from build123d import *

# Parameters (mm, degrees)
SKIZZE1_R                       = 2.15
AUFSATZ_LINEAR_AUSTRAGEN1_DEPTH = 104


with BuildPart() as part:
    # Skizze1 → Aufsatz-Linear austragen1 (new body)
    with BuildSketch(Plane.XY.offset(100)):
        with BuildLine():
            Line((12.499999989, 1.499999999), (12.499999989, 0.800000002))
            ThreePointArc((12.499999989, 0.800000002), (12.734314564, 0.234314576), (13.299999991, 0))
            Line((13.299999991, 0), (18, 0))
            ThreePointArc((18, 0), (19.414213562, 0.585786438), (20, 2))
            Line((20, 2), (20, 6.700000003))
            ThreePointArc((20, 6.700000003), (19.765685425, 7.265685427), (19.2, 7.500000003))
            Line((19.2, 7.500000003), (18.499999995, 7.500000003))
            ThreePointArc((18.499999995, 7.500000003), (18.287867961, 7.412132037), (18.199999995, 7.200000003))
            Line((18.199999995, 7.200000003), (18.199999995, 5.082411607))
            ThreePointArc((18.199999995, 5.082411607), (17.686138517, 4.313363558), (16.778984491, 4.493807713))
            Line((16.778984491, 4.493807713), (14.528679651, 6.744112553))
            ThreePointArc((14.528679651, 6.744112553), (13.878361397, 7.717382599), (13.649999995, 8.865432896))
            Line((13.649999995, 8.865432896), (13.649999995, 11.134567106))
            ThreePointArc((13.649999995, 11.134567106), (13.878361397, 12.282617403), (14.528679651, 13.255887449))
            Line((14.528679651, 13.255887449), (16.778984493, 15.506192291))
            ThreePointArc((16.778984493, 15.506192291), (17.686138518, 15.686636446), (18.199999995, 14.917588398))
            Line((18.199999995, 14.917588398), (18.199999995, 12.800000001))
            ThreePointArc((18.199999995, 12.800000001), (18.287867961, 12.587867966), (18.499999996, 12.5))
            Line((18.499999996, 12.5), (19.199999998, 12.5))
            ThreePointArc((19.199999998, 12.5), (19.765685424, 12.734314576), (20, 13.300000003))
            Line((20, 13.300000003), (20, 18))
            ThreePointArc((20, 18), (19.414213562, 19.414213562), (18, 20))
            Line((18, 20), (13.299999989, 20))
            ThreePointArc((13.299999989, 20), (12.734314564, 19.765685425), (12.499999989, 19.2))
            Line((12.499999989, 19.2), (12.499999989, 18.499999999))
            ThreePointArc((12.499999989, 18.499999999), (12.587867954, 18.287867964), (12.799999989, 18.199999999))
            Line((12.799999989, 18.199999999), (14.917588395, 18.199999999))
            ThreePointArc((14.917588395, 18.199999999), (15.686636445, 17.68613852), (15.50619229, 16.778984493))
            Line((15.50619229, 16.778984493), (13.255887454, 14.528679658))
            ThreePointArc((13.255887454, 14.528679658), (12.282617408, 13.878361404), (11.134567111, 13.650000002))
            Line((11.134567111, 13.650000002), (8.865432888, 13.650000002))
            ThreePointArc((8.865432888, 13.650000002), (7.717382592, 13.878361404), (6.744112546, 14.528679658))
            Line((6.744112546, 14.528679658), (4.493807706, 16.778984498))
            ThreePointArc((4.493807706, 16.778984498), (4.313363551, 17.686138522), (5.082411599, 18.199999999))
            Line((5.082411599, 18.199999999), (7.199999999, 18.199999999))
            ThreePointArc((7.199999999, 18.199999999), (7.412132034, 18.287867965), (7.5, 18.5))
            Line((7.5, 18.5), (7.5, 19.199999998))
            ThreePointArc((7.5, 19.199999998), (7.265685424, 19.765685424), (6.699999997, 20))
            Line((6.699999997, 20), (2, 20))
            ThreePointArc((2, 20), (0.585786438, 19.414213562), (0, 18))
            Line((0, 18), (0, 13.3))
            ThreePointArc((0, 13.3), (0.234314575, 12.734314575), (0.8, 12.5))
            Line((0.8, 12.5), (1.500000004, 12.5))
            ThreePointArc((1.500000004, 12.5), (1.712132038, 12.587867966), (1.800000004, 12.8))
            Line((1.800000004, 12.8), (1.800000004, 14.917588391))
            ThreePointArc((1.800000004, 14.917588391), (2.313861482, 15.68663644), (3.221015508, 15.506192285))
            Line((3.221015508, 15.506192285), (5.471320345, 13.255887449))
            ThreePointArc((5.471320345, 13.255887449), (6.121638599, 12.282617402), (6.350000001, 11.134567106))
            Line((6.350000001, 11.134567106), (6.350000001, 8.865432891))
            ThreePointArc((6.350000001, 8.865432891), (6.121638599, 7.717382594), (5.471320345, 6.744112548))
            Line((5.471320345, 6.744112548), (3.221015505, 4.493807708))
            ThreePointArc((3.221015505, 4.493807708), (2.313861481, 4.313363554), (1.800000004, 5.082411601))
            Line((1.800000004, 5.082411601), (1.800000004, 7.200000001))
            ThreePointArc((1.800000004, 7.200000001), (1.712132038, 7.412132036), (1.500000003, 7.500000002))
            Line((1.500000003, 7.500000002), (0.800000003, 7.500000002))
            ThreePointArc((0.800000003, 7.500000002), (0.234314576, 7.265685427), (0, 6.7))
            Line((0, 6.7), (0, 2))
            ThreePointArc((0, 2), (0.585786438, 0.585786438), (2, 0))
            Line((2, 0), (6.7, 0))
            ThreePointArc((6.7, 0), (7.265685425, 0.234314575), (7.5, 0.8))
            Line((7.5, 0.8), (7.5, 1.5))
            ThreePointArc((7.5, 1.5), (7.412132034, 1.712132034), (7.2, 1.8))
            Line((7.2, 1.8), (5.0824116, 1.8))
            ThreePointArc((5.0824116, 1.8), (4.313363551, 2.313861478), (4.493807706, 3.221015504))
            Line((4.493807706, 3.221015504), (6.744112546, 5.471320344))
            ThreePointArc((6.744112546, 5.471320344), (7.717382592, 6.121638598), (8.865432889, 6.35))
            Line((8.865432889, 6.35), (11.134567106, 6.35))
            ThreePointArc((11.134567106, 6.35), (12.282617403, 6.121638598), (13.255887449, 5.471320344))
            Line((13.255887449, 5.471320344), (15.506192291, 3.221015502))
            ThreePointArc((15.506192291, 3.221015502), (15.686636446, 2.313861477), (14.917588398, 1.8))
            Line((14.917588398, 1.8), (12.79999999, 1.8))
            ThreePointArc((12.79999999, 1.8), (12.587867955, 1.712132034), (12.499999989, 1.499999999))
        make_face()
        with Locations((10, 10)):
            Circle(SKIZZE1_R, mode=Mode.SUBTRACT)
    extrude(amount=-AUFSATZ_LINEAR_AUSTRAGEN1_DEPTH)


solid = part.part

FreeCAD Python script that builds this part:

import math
import FreeCAD as App
import Part
import Sketcher
from FreeCAD import Vector
Q = App.Units.Quantity

doc = App.newDocument("Part")
params = doc.addObject("Spreadsheet::Sheet", "Params")
for row, (alias, value) in enumerate([
    ("sketch1_radius", "2 mm"),
    ("sketch1_radius2", "3 mm"),
    ("sketch1_diameter", "4.3 mm"),
    ("sketch1_radius3", "0.8 mm"),
    ("sketch1_radius4", "0.3 mm"),
    ("pad1_length", "104 mm"),
], start=1):
    params.set(f"A{row}", alias)
    params.set(f"B{row}", "=" + value)
    params.setAlias(f"B{row}", alias)

body = doc.addObject("PartDesign::Body", "Body")

# Sketch on XY plane
sketch1 = body.newObject("Sketcher::SketchObject", "Sketch")
sketch1.AttachmentSupport = (doc.getObject("XY_Plane"), [""])
sketch1.MapMode = "FlatFace"
sketch1.AttachmentOffset = App.Placement(Vector(0, 0, 100), App.Rotation())
sketch1.addGeometry([
    Part.LineSegment(Vector(12.5, 1.5, 0), Vector(12.5, 0.8, 0)),  # 0
    Part.ArcOfCircle(Part.Circle(Vector(13.3, 0.8, 0), Vector(0, 0, 1), 0.8), math.radians(180), math.radians(270)),  # 1
    Part.LineSegment(Vector(13.3, 0, 0), Vector(18, 0, 0)),  # 2
    Part.ArcOfCircle(Part.Circle(Vector(18, 2, 0), Vector(0, 0, 1), 2), math.radians(-90), math.radians(0)),  # 3
    Part.LineSegment(Vector(20, 2, 0), Vector(20, 6.7, 0)),  # 4
    Part.ArcOfCircle(Part.Circle(Vector(19.2, 6.7, 0), Vector(0, 0, 1), 0.8), math.radians(0), math.radians(90)),  # 5
    Part.LineSegment(Vector(19.2, 7.5, 0), Vector(18.5, 7.5, 0)),  # 6
    Part.ArcOfCircle(Part.Circle(Vector(18.5, 7.2, 0), Vector(0, 0, 1), 0.3), math.radians(90), math.radians(180)),  # 7
    Part.LineSegment(Vector(18.2, 7.2, 0), Vector(18.2, 5.082412, 0)),  # 8
    Part.ArcOfCircle(Part.Circle(Vector(17.367588, 5.082412, 0), Vector(0, 0, 1), 0.832412), math.radians(-135), math.radians(0)),  # 9
    Part.LineSegment(Vector(16.778984, 4.493808, 0), Vector(14.52868, 6.744113, 0)),  # 10
    Part.ArcOfCircle(Part.Circle(Vector(16.65, 8.865433, 0), Vector(0, 0, 1), 3), math.radians(180), math.radians(225)),  # 11
    Part.LineSegment(Vector(13.65, 8.865433, 0), Vector(13.65, 11.134567, 0)),  # 12
    Part.ArcOfCircle(Part.Circle(Vector(16.65, 11.134567, 0), Vector(0, 0, 1), 3), math.radians(135), math.radians(180)),  # 13
    Part.LineSegment(Vector(14.52868, 13.255887, 0), Vector(16.778984, 15.506192, 0)),  # 14
    Part.ArcOfCircle(Part.Circle(Vector(17.367588, 14.917588, 0), Vector(0, 0, 1), 0.832412), math.radians(0), math.radians(135)),  # 15
    Part.LineSegment(Vector(18.2, 14.917588, 0), Vector(18.2, 12.8, 0)),  # 16
    Part.ArcOfCircle(Part.Circle(Vector(18.5, 12.8, 0), Vector(0, 0, 1), 0.3), math.radians(180), math.radians(270)),  # 17
    Part.LineSegment(Vector(18.5, 12.5, 0), Vector(19.2, 12.5, 0)),  # 18
    Part.ArcOfCircle(Part.Circle(Vector(19.2, 13.3, 0), Vector(0, 0, 1), 0.8), math.radians(-90), math.radians(0)),  # 19
    Part.LineSegment(Vector(20, 13.3, 0), Vector(20, 18, 0)),  # 20
    Part.ArcOfCircle(Part.Circle(Vector(18, 18, 0), Vector(0, 0, 1), 2), math.radians(0), math.radians(90)),  # 21
    Part.LineSegment(Vector(18, 20, 0), Vector(13.3, 20, 0)),  # 22
    Part.ArcOfCircle(Part.Circle(Vector(13.3, 19.2, 0), Vector(0, 0, 1), 0.8), math.radians(90), math.radians(180)),  # 23
    Part.LineSegment(Vector(12.5, 19.2, 0), Vector(12.5, 18.5, 0)),  # 24
    Part.ArcOfCircle(Part.Circle(Vector(12.8, 18.5, 0), Vector(0, 0, 1), 0.3), math.radians(180), math.radians(270)),  # 25
    Part.LineSegment(Vector(12.8, 18.2, 0), Vector(14.917588, 18.2, 0)),  # 26
    Part.ArcOfCircle(Part.Circle(Vector(14.917588, 17.367588, 0), Vector(0, 0, 1), 0.832412), math.radians(-45), math.radians(90)),  # 27
    Part.LineSegment(Vector(15.506192, 16.778984, 0), Vector(13.255887, 14.52868, 0)),  # 28
    Part.ArcOfCircle(Part.Circle(Vector(11.134567, 16.65, 0), Vector(0, 0, 1), 3), math.radians(-90), math.radians(-45)),  # 29
    Part.LineSegment(Vector(11.134567, 13.65, 0), Vector(8.865433, 13.65, 0)),  # 30
    Part.ArcOfCircle(Part.Circle(Vector(8.865433, 16.65, 0), Vector(0, 0, 1), 3), math.radians(-135), math.radians(-90)),  # 31
    Part.LineSegment(Vector(6.744113, 14.52868, 0), Vector(4.493808, 16.778984, 0)),  # 32
    Part.ArcOfCircle(Part.Circle(Vector(5.082412, 17.367588, 0), Vector(0, 0, 1), 0.832412), math.radians(90), math.radians(225)),  # 33
    Part.LineSegment(Vector(5.082412, 18.2, 0), Vector(7.2, 18.2, 0)),  # 34
    Part.ArcOfCircle(Part.Circle(Vector(7.2, 18.5, 0), Vector(0, 0, 1), 0.3), math.radians(-90), math.radians(0)),  # 35
    Part.LineSegment(Vector(7.5, 18.5, 0), Vector(7.5, 19.2, 0)),  # 36
    Part.ArcOfCircle(Part.Circle(Vector(6.7, 19.2, 0), Vector(0, 0, 1), 0.8), math.radians(0), math.radians(90)),  # 37
    Part.LineSegment(Vector(6.7, 20, 0), Vector(2, 20, 0)),  # 38
    Part.ArcOfCircle(Part.Circle(Vector(2, 18, 0), Vector(0, 0, 1), 2), math.radians(90), math.radians(180)),  # 39
    Part.LineSegment(Vector(0, 18, 0), Vector(0, 13.3, 0)),  # 40
    Part.ArcOfCircle(Part.Circle(Vector(0.8, 13.3, 0), Vector(0, 0, 1), 0.8), math.radians(180), math.radians(270)),  # 41
    Part.LineSegment(Vector(0.8, 12.5, 0), Vector(1.5, 12.5, 0)),  # 42
    Part.ArcOfCircle(Part.Circle(Vector(1.5, 12.8, 0), Vector(0, 0, 1), 0.3), math.radians(-90), math.radians(0)),  # 43
    Part.LineSegment(Vector(1.8, 12.8, 0), Vector(1.8, 14.917588, 0)),  # 44
    Part.ArcOfCircle(Part.Circle(Vector(2.632412, 14.917588, 0), Vector(0, 0, 1), 0.832412), math.radians(45), math.radians(180)),  # 45
    Part.LineSegment(Vector(3.221016, 15.506192, 0), Vector(5.47132, 13.255887, 0)),  # 46
    Part.ArcOfCircle(Part.Circle(Vector(3.35, 11.134567, 0), Vector(0, 0, 1), 3), math.radians(0), math.radians(45)),  # 47
    Part.LineSegment(Vector(6.35, 11.134567, 0), Vector(6.35, 8.865433, 0)),  # 48
    Part.ArcOfCircle(Part.Circle(Vector(3.35, 8.865433, 0), Vector(0, 0, 1), 3), math.radians(-45), math.radians(0)),  # 49
    Part.LineSegment(Vector(5.47132, 6.744113, 0), Vector(3.221016, 4.493808, 0)),  # 50
    Part.ArcOfCircle(Part.Circle(Vector(2.632412, 5.082412, 0), Vector(0, 0, 1), 0.832412), math.radians(-180), math.radians(-45)),  # 51
    Part.LineSegment(Vector(1.8, 5.082412, 0), Vector(1.8, 7.2, 0)),  # 52
    Part.ArcOfCircle(Part.Circle(Vector(1.5, 7.2, 0), Vector(0, 0, 1), 0.3), math.radians(0), math.radians(90)),  # 53
    Part.LineSegment(Vector(1.5, 7.5, 0), Vector(0.8, 7.5, 0)),  # 54
    Part.ArcOfCircle(Part.Circle(Vector(0.8, 6.7, 0), Vector(0, 0, 1), 0.8), math.radians(90), math.radians(180)),  # 55
    Part.LineSegment(Vector(0, 6.7, 0), Vector(0, 2, 0)),  # 56
    Part.ArcOfCircle(Part.Circle(Vector(2, 2, 0), Vector(0, 0, 1), 2), math.radians(-180), math.radians(-90)),  # 57
    Part.LineSegment(Vector(2, 0, 0), Vector(6.7, 0, 0)),  # 58
    Part.ArcOfCircle(Part.Circle(Vector(6.7, 0.8, 0), Vector(0, 0, 1), 0.8), math.radians(-90), math.radians(0)),  # 59
    Part.LineSegment(Vector(7.5, 0.8, 0), Vector(7.5, 1.5, 0)),  # 60
    Part.ArcOfCircle(Part.Circle(Vector(7.2, 1.5, 0), Vector(0, 0, 1), 0.3), math.radians(0), math.radians(90)),  # 61
    Part.LineSegment(Vector(7.2, 1.8, 0), Vector(5.082412, 1.8, 0)),  # 62
    Part.ArcOfCircle(Part.Circle(Vector(5.082412, 2.632412, 0), Vector(0, 0, 1), 0.832412), math.radians(135), math.radians(270)),  # 63
    Part.LineSegment(Vector(4.493808, 3.221016, 0), Vector(6.744113, 5.47132, 0)),  # 64
    Part.ArcOfCircle(Part.Circle(Vector(8.865433, 3.35, 0), Vector(0, 0, 1), 3), math.radians(90), math.radians(135)),  # 65
    Part.LineSegment(Vector(8.865433, 6.35, 0), Vector(11.134567, 6.35, 0)),  # 66
    Part.ArcOfCircle(Part.Circle(Vector(11.134567, 3.35, 0), Vector(0, 0, 1), 3), math.radians(45), math.radians(90)),  # 67
    Part.LineSegment(Vector(13.255887, 5.47132, 0), Vector(15.506192, 3.221016, 0)),  # 68
    Part.ArcOfCircle(Part.Circle(Vector(14.917588, 2.632412, 0), Vector(0, 0, 1), 0.832412), math.radians(-90), math.radians(45)),  # 69
    Part.LineSegment(Vector(14.917588, 1.8, 0), Vector(12.8, 1.8, 0)),  # 70
    Part.ArcOfCircle(Part.Circle(Vector(12.8, 1.5, 0), Vector(0, 0, 1), 0.3), math.radians(90), math.radians(180)),  # 71
    Part.Circle(Vector(10, 10, 0), Vector(0, 0, 1), 2.15),  # 72
], False)
sketch1.addConstraint([
    Sketcher.Constraint("Tangent", 0, 2, 1, 1),
    Sketcher.Constraint("Tangent", 1, 2, 2, 1),
    Sketcher.Constraint("Tangent", 2, 2, 3, 1),
    Sketcher.Constraint("Tangent", 3, 2, 4, 1),
    Sketcher.Constraint("Tangent", 4, 2, 5, 1),
    Sketcher.Constraint("Tangent", 5, 2, 6, 1),
    Sketcher.Constraint("Tangent", 6, 2, 7, 1),
    Sketcher.Constraint("Tangent", 7, 2, 8, 1),
    Sketcher.Constraint("Tangent", 8, 2, 9, 2),
    Sketcher.Constraint("Tangent", 9, 1, 10, 1),
    Sketcher.Constraint("Tangent", 10, 2, 11, 2),
    Sketcher.Constraint("Tangent", 11, 1, 12, 1),
    Sketcher.Constraint("Tangent", 12, 2, 13, 2),
    Sketcher.Constraint("Tangent", 13, 1, 14, 1),
    Sketcher.Constraint("Tangent", 14, 2, 15, 2),
    Sketcher.Constraint("Tangent", 15, 1, 16, 1),
    Sketcher.Constraint("Tangent", 16, 2, 17, 1),
    Sketcher.Constraint("Tangent", 17, 2, 18, 1),
    Sketcher.Constraint("Tangent", 18, 2, 19, 1),
    Sketcher.Constraint("Tangent", 19, 2, 20, 1),
    Sketcher.Constraint("Tangent", 20, 2, 21, 1),
    Sketcher.Constraint("Tangent", 21, 2, 22, 1),
    Sketcher.Constraint("Tangent", 22, 2, 23, 1),
    Sketcher.Constraint("Tangent", 23, 2, 24, 1),
    Sketcher.Constraint("Tangent", 24, 2, 25, 1),
    Sketcher.Constraint("Tangent", 25, 2, 26, 1),
    Sketcher.Constraint("Tangent", 26, 2, 27, 2),
    Sketcher.Constraint("Tangent", 27, 1, 28, 1),
    Sketcher.Constraint("Tangent", 28, 2, 29, 2),
    Sketcher.Constraint("Tangent", 29, 1, 30, 1),
    Sketcher.Constraint("Tangent", 30, 2, 31, 2),
    Sketcher.Constraint("Tangent", 31, 1, 32, 1),
    Sketcher.Constraint("Tangent", 32, 2, 33, 2),
    Sketcher.Constraint("Tangent", 33, 1, 34, 1),
    Sketcher.Constraint("Tangent", 34, 2, 35, 1),
    Sketcher.Constraint("Tangent", 35, 2, 36, 1),
    Sketcher.Constraint("Tangent", 36, 2, 37, 1),
    Sketcher.Constraint("Tangent", 37, 2, 38, 1),
    Sketcher.Constraint("Tangent", 38, 2, 39, 1),
    Sketcher.Constraint("Tangent", 39, 2, 40, 1),
    Sketcher.Constraint("Tangent", 40, 2, 41, 1),
    Sketcher.Constraint("Tangent", 41, 2, 42, 1),
    Sketcher.Constraint("Tangent", 42, 2, 43, 1),
    Sketcher.Constraint("Tangent", 43, 2, 44, 1),
    Sketcher.Constraint("Tangent", 44, 2, 45, 2),
    Sketcher.Constraint("Tangent", 45, 1, 46, 1),
    Sketcher.Constraint("Tangent", 46, 2, 47, 2),
    Sketcher.Constraint("Tangent", 47, 1, 48, 1),
    Sketcher.Constraint("Tangent", 48, 2, 49, 2),
    Sketcher.Constraint("Tangent", 49, 1, 50, 1),
    Sketcher.Constraint("Tangent", 50, 2, 51, 2),
    Sketcher.Constraint("Tangent", 51, 1, 52, 1),
    Sketcher.Constraint("Tangent", 52, 2, 53, 1),
    Sketcher.Constraint("Tangent", 53, 2, 54, 1),
    Sketcher.Constraint("Tangent", 54, 2, 55, 1),
    Sketcher.Constraint("Tangent", 55, 2, 56, 1),
    Sketcher.Constraint("Tangent", 56, 2, 57, 1),
    Sketcher.Constraint("Tangent", 57, 2, 58, 1),
    Sketcher.Constraint("Tangent", 58, 2, 59, 1),
    Sketcher.Constraint("Tangent", 59, 2, 60, 1),
    Sketcher.Constraint("Tangent", 60, 2, 61, 1),
    Sketcher.Constraint("Tangent", 61, 2, 62, 1),
    Sketcher.Constraint("Tangent", 62, 2, 63, 2),
    Sketcher.Constraint("Tangent", 63, 1, 64, 1),
    Sketcher.Constraint("Tangent", 64, 2, 65, 2),
    Sketcher.Constraint("Tangent", 65, 1, 66, 1),
    Sketcher.Constraint("Tangent", 66, 2, 67, 2),
    Sketcher.Constraint("Tangent", 67, 1, 68, 1),
    Sketcher.Constraint("Tangent", 68, 2, 69, 2),
    Sketcher.Constraint("Tangent", 69, 1, 70, 1),
    Sketcher.Constraint("Tangent", 70, 2, 71, 1),
    Sketcher.Constraint("Tangent", 71, 2, 0, 1),
    Sketcher.Constraint("Vertical", 0),
    Sketcher.Constraint("Horizontal", 2),
    Sketcher.Constraint("Vertical", 4),
    Sketcher.Constraint("Horizontal", 6),
    Sketcher.Constraint("Vertical", 8),
    Sketcher.Constraint("Vertical", 12),
    Sketcher.Constraint("Vertical", 16),
    Sketcher.Constraint("Horizontal", 18),
    Sketcher.Constraint("Vertical", 20),
    Sketcher.Constraint("Horizontal", 22),
    Sketcher.Constraint("Vertical", 24),
    Sketcher.Constraint("Horizontal", 26),
    Sketcher.Constraint("Horizontal", 30),
    Sketcher.Constraint("Horizontal", 34),
    Sketcher.Constraint("Vertical", 36),
    Sketcher.Constraint("Horizontal", 38),
    Sketcher.Constraint("Vertical", 40),
    Sketcher.Constraint("Horizontal", 42),
    Sketcher.Constraint("Vertical", 44),
    Sketcher.Constraint("Vertical", 48),
    Sketcher.Constraint("Vertical", 52),
    Sketcher.Constraint("Horizontal", 54),
    Sketcher.Constraint("Vertical", 56),
    Sketcher.Constraint("Horizontal", 58),
    Sketcher.Constraint("Vertical", 60),
    Sketcher.Constraint("Horizontal", 62),
    Sketcher.Constraint("Horizontal", 66),
    Sketcher.Constraint("Horizontal", 70),
    Sketcher.Constraint("Equal", 1, 5),
    Sketcher.Constraint("Equal", 11, 13),
    Sketcher.Constraint("Equal", 9, 15),
    Sketcher.Constraint("Equal", 7, 17),
    Sketcher.Constraint("Equal", 5, 19),
    Sketcher.Constraint("Equal", 3, 21),
    Sketcher.Constraint("Equal", 19, 23),
    Sketcher.Constraint("Equal", 17, 25),
    Sketcher.Constraint("Equal", 15, 27),
    Sketcher.Constraint("Equal", 13, 29),
    Sketcher.Constraint("Equal", 29, 31),
    Sketcher.Constraint("Equal", 27, 33),
    Sketcher.Constraint("Equal", 25, 35),
    Sketcher.Constraint("Equal", 23, 37),
    Sketcher.Constraint("Equal", 21, 39),
    Sketcher.Constraint("Equal", 37, 41),
    Sketcher.Constraint("Equal", 35, 43),
    Sketcher.Constraint("Equal", 33, 45),
    Sketcher.Constraint("Equal", 31, 47),
    Sketcher.Constraint("Equal", 47, 49),
    Sketcher.Constraint("Equal", 45, 51),
    Sketcher.Constraint("Equal", 43, 53),
    Sketcher.Constraint("Equal", 41, 55),
    Sketcher.Constraint("Equal", 39, 57),
    Sketcher.Constraint("Equal", 55, 59),
    Sketcher.Constraint("Equal", 53, 61),
    Sketcher.Constraint("Equal", 51, 63),
    Sketcher.Constraint("Equal", 49, 65),
    Sketcher.Constraint("Equal", 65, 67),
    Sketcher.Constraint("Equal", 63, 69),
    Sketcher.Constraint("Equal", 61, 71),
    Sketcher.Constraint("PointOnObject", 1, 2, -1),
    Sketcher.Constraint("PointOnObject", 39, 2, -2),
    Sketcher.Constraint("PointOnObject", 55, 2, -2),
    Sketcher.Constraint("PointOnObject", 57, 2, -1),
    Sketcher.Constraint("Perpendicular", 10, 14),
    Sketcher.Constraint("Parallel", 14, 28),
    Sketcher.Constraint("Perpendicular", 28, 32),
    Sketcher.Constraint("Parallel", 32, 46),
    Sketcher.Constraint("Perpendicular", 46, 50),
    Sketcher.Constraint("Parallel", 50, 64),
    Sketcher.Constraint("Perpendicular", 64, 68),
    Sketcher.Constraint("Horizontal", 27, 3, 33, 3),
    Sketcher.Constraint("Horizontal", 23, 3, 37, 3),
    Sketcher.Constraint("Horizontal", 19, 3, 41, 3),
    Sketcher.Constraint("Horizontal", 15, 3, 45, 3),
    Sketcher.Constraint("Horizontal", 13, 3, 47, 3),
    Sketcher.Constraint("Horizontal", 11, 3, 49, 3),
    Sketcher.Constraint("Horizontal", 9, 3, 51, 3),
    Sketcher.Constraint("Horizontal", 7, 3, 53, 3),
    Sketcher.Constraint("Horizontal", 63, 3, 69, 3),
    Sketcher.Constraint("Horizontal", 28, 2, 31, 1),
    Sketcher.Constraint("Vertical", 9, 3, 15, 3),
    Sketcher.Constraint("Vertical", 5, 3, 19, 3),
    Sketcher.Constraint("Vertical", 1, 3, 23, 3),
    Sketcher.Constraint("Vertical", 37, 3, 59, 3),
    Sketcher.Constraint("Vertical", 33, 3, 63, 3),
    Sketcher.Constraint("Vertical", 31, 3, 65, 3),
    Sketcher.Constraint("Vertical", 29, 3, 67, 3),
    Sketcher.Constraint("Equal", 26, 34),
    Sketcher.Constraint("Equal", 22, 38),
    Sketcher.Constraint("Equal", 18, 42),
    Sketcher.Constraint("Equal", 54, 0),
    Sketcher.Constraint("Equal", 58, 4),
    Sketcher.Constraint("Equal", 70, 8),
    Sketcher.Constraint("Equal", 66, 12),
    Sketcher.Constraint("Equal", 8, 16),
    Sketcher.Constraint("Equal", 4, 20),
    Sketcher.Constraint("Equal", 0, 24),
    Sketcher.Constraint("Equal", 14, 28),
    Sketcher.Constraint("Radius", 3, Q("2 mm")),
    Sketcher.Constraint("Radius", 11, Q("3 mm")),
    Sketcher.Constraint("Diameter", 72, Q("4.3 mm")),
    Sketcher.Constraint("Radius", 1, Q("0.8 mm")),
    Sketcher.Constraint("Radius", 7, Q("0.3 mm")),
    Sketcher.Constraint("DistanceX", 2, 1, 2, 2, Q("4.7 mm")),
    Sketcher.Constraint("DistanceX", 6, 2, 6, 1, Q("0.7 mm")),
    Sketcher.Constraint("DistanceX", -1, 1, 3, 3, Q("18 mm")),
    Sketcher.Constraint("DistanceX", -1, 1, 72, 3, Q("10 mm")),
    Sketcher.Constraint("DistanceY", -1, 1, 72, 3, Q("10 mm")),
    Sketcher.Constraint("DistanceX", -1, 1, 11, 3, Q("16.65 mm")),
    Sketcher.Constraint("Radius", 9, Q("0.832412 mm")),
    Sketcher.Constraint("DistanceX", 26, 1, 26, 2, Q("2.117588 mm")),
])
sketch1.setExpression("Constraints[170]", "Params.sketch1_radius")
sketch1.setExpression("Constraints[171]", "Params.sketch1_radius2")
sketch1.setExpression("Constraints[172]", "Params.sketch1_diameter")
sketch1.setExpression("Constraints[173]", "Params.sketch1_radius3")
sketch1.setExpression("Constraints[174]", "Params.sketch1_radius4")
pad1 = body.newObject("PartDesign::Pad", "Pad")
pad1.Profile = sketch1
pad1.setExpression("Length", "Params.pad1_length")
pad1.Reversed = True

doc.recompute()
